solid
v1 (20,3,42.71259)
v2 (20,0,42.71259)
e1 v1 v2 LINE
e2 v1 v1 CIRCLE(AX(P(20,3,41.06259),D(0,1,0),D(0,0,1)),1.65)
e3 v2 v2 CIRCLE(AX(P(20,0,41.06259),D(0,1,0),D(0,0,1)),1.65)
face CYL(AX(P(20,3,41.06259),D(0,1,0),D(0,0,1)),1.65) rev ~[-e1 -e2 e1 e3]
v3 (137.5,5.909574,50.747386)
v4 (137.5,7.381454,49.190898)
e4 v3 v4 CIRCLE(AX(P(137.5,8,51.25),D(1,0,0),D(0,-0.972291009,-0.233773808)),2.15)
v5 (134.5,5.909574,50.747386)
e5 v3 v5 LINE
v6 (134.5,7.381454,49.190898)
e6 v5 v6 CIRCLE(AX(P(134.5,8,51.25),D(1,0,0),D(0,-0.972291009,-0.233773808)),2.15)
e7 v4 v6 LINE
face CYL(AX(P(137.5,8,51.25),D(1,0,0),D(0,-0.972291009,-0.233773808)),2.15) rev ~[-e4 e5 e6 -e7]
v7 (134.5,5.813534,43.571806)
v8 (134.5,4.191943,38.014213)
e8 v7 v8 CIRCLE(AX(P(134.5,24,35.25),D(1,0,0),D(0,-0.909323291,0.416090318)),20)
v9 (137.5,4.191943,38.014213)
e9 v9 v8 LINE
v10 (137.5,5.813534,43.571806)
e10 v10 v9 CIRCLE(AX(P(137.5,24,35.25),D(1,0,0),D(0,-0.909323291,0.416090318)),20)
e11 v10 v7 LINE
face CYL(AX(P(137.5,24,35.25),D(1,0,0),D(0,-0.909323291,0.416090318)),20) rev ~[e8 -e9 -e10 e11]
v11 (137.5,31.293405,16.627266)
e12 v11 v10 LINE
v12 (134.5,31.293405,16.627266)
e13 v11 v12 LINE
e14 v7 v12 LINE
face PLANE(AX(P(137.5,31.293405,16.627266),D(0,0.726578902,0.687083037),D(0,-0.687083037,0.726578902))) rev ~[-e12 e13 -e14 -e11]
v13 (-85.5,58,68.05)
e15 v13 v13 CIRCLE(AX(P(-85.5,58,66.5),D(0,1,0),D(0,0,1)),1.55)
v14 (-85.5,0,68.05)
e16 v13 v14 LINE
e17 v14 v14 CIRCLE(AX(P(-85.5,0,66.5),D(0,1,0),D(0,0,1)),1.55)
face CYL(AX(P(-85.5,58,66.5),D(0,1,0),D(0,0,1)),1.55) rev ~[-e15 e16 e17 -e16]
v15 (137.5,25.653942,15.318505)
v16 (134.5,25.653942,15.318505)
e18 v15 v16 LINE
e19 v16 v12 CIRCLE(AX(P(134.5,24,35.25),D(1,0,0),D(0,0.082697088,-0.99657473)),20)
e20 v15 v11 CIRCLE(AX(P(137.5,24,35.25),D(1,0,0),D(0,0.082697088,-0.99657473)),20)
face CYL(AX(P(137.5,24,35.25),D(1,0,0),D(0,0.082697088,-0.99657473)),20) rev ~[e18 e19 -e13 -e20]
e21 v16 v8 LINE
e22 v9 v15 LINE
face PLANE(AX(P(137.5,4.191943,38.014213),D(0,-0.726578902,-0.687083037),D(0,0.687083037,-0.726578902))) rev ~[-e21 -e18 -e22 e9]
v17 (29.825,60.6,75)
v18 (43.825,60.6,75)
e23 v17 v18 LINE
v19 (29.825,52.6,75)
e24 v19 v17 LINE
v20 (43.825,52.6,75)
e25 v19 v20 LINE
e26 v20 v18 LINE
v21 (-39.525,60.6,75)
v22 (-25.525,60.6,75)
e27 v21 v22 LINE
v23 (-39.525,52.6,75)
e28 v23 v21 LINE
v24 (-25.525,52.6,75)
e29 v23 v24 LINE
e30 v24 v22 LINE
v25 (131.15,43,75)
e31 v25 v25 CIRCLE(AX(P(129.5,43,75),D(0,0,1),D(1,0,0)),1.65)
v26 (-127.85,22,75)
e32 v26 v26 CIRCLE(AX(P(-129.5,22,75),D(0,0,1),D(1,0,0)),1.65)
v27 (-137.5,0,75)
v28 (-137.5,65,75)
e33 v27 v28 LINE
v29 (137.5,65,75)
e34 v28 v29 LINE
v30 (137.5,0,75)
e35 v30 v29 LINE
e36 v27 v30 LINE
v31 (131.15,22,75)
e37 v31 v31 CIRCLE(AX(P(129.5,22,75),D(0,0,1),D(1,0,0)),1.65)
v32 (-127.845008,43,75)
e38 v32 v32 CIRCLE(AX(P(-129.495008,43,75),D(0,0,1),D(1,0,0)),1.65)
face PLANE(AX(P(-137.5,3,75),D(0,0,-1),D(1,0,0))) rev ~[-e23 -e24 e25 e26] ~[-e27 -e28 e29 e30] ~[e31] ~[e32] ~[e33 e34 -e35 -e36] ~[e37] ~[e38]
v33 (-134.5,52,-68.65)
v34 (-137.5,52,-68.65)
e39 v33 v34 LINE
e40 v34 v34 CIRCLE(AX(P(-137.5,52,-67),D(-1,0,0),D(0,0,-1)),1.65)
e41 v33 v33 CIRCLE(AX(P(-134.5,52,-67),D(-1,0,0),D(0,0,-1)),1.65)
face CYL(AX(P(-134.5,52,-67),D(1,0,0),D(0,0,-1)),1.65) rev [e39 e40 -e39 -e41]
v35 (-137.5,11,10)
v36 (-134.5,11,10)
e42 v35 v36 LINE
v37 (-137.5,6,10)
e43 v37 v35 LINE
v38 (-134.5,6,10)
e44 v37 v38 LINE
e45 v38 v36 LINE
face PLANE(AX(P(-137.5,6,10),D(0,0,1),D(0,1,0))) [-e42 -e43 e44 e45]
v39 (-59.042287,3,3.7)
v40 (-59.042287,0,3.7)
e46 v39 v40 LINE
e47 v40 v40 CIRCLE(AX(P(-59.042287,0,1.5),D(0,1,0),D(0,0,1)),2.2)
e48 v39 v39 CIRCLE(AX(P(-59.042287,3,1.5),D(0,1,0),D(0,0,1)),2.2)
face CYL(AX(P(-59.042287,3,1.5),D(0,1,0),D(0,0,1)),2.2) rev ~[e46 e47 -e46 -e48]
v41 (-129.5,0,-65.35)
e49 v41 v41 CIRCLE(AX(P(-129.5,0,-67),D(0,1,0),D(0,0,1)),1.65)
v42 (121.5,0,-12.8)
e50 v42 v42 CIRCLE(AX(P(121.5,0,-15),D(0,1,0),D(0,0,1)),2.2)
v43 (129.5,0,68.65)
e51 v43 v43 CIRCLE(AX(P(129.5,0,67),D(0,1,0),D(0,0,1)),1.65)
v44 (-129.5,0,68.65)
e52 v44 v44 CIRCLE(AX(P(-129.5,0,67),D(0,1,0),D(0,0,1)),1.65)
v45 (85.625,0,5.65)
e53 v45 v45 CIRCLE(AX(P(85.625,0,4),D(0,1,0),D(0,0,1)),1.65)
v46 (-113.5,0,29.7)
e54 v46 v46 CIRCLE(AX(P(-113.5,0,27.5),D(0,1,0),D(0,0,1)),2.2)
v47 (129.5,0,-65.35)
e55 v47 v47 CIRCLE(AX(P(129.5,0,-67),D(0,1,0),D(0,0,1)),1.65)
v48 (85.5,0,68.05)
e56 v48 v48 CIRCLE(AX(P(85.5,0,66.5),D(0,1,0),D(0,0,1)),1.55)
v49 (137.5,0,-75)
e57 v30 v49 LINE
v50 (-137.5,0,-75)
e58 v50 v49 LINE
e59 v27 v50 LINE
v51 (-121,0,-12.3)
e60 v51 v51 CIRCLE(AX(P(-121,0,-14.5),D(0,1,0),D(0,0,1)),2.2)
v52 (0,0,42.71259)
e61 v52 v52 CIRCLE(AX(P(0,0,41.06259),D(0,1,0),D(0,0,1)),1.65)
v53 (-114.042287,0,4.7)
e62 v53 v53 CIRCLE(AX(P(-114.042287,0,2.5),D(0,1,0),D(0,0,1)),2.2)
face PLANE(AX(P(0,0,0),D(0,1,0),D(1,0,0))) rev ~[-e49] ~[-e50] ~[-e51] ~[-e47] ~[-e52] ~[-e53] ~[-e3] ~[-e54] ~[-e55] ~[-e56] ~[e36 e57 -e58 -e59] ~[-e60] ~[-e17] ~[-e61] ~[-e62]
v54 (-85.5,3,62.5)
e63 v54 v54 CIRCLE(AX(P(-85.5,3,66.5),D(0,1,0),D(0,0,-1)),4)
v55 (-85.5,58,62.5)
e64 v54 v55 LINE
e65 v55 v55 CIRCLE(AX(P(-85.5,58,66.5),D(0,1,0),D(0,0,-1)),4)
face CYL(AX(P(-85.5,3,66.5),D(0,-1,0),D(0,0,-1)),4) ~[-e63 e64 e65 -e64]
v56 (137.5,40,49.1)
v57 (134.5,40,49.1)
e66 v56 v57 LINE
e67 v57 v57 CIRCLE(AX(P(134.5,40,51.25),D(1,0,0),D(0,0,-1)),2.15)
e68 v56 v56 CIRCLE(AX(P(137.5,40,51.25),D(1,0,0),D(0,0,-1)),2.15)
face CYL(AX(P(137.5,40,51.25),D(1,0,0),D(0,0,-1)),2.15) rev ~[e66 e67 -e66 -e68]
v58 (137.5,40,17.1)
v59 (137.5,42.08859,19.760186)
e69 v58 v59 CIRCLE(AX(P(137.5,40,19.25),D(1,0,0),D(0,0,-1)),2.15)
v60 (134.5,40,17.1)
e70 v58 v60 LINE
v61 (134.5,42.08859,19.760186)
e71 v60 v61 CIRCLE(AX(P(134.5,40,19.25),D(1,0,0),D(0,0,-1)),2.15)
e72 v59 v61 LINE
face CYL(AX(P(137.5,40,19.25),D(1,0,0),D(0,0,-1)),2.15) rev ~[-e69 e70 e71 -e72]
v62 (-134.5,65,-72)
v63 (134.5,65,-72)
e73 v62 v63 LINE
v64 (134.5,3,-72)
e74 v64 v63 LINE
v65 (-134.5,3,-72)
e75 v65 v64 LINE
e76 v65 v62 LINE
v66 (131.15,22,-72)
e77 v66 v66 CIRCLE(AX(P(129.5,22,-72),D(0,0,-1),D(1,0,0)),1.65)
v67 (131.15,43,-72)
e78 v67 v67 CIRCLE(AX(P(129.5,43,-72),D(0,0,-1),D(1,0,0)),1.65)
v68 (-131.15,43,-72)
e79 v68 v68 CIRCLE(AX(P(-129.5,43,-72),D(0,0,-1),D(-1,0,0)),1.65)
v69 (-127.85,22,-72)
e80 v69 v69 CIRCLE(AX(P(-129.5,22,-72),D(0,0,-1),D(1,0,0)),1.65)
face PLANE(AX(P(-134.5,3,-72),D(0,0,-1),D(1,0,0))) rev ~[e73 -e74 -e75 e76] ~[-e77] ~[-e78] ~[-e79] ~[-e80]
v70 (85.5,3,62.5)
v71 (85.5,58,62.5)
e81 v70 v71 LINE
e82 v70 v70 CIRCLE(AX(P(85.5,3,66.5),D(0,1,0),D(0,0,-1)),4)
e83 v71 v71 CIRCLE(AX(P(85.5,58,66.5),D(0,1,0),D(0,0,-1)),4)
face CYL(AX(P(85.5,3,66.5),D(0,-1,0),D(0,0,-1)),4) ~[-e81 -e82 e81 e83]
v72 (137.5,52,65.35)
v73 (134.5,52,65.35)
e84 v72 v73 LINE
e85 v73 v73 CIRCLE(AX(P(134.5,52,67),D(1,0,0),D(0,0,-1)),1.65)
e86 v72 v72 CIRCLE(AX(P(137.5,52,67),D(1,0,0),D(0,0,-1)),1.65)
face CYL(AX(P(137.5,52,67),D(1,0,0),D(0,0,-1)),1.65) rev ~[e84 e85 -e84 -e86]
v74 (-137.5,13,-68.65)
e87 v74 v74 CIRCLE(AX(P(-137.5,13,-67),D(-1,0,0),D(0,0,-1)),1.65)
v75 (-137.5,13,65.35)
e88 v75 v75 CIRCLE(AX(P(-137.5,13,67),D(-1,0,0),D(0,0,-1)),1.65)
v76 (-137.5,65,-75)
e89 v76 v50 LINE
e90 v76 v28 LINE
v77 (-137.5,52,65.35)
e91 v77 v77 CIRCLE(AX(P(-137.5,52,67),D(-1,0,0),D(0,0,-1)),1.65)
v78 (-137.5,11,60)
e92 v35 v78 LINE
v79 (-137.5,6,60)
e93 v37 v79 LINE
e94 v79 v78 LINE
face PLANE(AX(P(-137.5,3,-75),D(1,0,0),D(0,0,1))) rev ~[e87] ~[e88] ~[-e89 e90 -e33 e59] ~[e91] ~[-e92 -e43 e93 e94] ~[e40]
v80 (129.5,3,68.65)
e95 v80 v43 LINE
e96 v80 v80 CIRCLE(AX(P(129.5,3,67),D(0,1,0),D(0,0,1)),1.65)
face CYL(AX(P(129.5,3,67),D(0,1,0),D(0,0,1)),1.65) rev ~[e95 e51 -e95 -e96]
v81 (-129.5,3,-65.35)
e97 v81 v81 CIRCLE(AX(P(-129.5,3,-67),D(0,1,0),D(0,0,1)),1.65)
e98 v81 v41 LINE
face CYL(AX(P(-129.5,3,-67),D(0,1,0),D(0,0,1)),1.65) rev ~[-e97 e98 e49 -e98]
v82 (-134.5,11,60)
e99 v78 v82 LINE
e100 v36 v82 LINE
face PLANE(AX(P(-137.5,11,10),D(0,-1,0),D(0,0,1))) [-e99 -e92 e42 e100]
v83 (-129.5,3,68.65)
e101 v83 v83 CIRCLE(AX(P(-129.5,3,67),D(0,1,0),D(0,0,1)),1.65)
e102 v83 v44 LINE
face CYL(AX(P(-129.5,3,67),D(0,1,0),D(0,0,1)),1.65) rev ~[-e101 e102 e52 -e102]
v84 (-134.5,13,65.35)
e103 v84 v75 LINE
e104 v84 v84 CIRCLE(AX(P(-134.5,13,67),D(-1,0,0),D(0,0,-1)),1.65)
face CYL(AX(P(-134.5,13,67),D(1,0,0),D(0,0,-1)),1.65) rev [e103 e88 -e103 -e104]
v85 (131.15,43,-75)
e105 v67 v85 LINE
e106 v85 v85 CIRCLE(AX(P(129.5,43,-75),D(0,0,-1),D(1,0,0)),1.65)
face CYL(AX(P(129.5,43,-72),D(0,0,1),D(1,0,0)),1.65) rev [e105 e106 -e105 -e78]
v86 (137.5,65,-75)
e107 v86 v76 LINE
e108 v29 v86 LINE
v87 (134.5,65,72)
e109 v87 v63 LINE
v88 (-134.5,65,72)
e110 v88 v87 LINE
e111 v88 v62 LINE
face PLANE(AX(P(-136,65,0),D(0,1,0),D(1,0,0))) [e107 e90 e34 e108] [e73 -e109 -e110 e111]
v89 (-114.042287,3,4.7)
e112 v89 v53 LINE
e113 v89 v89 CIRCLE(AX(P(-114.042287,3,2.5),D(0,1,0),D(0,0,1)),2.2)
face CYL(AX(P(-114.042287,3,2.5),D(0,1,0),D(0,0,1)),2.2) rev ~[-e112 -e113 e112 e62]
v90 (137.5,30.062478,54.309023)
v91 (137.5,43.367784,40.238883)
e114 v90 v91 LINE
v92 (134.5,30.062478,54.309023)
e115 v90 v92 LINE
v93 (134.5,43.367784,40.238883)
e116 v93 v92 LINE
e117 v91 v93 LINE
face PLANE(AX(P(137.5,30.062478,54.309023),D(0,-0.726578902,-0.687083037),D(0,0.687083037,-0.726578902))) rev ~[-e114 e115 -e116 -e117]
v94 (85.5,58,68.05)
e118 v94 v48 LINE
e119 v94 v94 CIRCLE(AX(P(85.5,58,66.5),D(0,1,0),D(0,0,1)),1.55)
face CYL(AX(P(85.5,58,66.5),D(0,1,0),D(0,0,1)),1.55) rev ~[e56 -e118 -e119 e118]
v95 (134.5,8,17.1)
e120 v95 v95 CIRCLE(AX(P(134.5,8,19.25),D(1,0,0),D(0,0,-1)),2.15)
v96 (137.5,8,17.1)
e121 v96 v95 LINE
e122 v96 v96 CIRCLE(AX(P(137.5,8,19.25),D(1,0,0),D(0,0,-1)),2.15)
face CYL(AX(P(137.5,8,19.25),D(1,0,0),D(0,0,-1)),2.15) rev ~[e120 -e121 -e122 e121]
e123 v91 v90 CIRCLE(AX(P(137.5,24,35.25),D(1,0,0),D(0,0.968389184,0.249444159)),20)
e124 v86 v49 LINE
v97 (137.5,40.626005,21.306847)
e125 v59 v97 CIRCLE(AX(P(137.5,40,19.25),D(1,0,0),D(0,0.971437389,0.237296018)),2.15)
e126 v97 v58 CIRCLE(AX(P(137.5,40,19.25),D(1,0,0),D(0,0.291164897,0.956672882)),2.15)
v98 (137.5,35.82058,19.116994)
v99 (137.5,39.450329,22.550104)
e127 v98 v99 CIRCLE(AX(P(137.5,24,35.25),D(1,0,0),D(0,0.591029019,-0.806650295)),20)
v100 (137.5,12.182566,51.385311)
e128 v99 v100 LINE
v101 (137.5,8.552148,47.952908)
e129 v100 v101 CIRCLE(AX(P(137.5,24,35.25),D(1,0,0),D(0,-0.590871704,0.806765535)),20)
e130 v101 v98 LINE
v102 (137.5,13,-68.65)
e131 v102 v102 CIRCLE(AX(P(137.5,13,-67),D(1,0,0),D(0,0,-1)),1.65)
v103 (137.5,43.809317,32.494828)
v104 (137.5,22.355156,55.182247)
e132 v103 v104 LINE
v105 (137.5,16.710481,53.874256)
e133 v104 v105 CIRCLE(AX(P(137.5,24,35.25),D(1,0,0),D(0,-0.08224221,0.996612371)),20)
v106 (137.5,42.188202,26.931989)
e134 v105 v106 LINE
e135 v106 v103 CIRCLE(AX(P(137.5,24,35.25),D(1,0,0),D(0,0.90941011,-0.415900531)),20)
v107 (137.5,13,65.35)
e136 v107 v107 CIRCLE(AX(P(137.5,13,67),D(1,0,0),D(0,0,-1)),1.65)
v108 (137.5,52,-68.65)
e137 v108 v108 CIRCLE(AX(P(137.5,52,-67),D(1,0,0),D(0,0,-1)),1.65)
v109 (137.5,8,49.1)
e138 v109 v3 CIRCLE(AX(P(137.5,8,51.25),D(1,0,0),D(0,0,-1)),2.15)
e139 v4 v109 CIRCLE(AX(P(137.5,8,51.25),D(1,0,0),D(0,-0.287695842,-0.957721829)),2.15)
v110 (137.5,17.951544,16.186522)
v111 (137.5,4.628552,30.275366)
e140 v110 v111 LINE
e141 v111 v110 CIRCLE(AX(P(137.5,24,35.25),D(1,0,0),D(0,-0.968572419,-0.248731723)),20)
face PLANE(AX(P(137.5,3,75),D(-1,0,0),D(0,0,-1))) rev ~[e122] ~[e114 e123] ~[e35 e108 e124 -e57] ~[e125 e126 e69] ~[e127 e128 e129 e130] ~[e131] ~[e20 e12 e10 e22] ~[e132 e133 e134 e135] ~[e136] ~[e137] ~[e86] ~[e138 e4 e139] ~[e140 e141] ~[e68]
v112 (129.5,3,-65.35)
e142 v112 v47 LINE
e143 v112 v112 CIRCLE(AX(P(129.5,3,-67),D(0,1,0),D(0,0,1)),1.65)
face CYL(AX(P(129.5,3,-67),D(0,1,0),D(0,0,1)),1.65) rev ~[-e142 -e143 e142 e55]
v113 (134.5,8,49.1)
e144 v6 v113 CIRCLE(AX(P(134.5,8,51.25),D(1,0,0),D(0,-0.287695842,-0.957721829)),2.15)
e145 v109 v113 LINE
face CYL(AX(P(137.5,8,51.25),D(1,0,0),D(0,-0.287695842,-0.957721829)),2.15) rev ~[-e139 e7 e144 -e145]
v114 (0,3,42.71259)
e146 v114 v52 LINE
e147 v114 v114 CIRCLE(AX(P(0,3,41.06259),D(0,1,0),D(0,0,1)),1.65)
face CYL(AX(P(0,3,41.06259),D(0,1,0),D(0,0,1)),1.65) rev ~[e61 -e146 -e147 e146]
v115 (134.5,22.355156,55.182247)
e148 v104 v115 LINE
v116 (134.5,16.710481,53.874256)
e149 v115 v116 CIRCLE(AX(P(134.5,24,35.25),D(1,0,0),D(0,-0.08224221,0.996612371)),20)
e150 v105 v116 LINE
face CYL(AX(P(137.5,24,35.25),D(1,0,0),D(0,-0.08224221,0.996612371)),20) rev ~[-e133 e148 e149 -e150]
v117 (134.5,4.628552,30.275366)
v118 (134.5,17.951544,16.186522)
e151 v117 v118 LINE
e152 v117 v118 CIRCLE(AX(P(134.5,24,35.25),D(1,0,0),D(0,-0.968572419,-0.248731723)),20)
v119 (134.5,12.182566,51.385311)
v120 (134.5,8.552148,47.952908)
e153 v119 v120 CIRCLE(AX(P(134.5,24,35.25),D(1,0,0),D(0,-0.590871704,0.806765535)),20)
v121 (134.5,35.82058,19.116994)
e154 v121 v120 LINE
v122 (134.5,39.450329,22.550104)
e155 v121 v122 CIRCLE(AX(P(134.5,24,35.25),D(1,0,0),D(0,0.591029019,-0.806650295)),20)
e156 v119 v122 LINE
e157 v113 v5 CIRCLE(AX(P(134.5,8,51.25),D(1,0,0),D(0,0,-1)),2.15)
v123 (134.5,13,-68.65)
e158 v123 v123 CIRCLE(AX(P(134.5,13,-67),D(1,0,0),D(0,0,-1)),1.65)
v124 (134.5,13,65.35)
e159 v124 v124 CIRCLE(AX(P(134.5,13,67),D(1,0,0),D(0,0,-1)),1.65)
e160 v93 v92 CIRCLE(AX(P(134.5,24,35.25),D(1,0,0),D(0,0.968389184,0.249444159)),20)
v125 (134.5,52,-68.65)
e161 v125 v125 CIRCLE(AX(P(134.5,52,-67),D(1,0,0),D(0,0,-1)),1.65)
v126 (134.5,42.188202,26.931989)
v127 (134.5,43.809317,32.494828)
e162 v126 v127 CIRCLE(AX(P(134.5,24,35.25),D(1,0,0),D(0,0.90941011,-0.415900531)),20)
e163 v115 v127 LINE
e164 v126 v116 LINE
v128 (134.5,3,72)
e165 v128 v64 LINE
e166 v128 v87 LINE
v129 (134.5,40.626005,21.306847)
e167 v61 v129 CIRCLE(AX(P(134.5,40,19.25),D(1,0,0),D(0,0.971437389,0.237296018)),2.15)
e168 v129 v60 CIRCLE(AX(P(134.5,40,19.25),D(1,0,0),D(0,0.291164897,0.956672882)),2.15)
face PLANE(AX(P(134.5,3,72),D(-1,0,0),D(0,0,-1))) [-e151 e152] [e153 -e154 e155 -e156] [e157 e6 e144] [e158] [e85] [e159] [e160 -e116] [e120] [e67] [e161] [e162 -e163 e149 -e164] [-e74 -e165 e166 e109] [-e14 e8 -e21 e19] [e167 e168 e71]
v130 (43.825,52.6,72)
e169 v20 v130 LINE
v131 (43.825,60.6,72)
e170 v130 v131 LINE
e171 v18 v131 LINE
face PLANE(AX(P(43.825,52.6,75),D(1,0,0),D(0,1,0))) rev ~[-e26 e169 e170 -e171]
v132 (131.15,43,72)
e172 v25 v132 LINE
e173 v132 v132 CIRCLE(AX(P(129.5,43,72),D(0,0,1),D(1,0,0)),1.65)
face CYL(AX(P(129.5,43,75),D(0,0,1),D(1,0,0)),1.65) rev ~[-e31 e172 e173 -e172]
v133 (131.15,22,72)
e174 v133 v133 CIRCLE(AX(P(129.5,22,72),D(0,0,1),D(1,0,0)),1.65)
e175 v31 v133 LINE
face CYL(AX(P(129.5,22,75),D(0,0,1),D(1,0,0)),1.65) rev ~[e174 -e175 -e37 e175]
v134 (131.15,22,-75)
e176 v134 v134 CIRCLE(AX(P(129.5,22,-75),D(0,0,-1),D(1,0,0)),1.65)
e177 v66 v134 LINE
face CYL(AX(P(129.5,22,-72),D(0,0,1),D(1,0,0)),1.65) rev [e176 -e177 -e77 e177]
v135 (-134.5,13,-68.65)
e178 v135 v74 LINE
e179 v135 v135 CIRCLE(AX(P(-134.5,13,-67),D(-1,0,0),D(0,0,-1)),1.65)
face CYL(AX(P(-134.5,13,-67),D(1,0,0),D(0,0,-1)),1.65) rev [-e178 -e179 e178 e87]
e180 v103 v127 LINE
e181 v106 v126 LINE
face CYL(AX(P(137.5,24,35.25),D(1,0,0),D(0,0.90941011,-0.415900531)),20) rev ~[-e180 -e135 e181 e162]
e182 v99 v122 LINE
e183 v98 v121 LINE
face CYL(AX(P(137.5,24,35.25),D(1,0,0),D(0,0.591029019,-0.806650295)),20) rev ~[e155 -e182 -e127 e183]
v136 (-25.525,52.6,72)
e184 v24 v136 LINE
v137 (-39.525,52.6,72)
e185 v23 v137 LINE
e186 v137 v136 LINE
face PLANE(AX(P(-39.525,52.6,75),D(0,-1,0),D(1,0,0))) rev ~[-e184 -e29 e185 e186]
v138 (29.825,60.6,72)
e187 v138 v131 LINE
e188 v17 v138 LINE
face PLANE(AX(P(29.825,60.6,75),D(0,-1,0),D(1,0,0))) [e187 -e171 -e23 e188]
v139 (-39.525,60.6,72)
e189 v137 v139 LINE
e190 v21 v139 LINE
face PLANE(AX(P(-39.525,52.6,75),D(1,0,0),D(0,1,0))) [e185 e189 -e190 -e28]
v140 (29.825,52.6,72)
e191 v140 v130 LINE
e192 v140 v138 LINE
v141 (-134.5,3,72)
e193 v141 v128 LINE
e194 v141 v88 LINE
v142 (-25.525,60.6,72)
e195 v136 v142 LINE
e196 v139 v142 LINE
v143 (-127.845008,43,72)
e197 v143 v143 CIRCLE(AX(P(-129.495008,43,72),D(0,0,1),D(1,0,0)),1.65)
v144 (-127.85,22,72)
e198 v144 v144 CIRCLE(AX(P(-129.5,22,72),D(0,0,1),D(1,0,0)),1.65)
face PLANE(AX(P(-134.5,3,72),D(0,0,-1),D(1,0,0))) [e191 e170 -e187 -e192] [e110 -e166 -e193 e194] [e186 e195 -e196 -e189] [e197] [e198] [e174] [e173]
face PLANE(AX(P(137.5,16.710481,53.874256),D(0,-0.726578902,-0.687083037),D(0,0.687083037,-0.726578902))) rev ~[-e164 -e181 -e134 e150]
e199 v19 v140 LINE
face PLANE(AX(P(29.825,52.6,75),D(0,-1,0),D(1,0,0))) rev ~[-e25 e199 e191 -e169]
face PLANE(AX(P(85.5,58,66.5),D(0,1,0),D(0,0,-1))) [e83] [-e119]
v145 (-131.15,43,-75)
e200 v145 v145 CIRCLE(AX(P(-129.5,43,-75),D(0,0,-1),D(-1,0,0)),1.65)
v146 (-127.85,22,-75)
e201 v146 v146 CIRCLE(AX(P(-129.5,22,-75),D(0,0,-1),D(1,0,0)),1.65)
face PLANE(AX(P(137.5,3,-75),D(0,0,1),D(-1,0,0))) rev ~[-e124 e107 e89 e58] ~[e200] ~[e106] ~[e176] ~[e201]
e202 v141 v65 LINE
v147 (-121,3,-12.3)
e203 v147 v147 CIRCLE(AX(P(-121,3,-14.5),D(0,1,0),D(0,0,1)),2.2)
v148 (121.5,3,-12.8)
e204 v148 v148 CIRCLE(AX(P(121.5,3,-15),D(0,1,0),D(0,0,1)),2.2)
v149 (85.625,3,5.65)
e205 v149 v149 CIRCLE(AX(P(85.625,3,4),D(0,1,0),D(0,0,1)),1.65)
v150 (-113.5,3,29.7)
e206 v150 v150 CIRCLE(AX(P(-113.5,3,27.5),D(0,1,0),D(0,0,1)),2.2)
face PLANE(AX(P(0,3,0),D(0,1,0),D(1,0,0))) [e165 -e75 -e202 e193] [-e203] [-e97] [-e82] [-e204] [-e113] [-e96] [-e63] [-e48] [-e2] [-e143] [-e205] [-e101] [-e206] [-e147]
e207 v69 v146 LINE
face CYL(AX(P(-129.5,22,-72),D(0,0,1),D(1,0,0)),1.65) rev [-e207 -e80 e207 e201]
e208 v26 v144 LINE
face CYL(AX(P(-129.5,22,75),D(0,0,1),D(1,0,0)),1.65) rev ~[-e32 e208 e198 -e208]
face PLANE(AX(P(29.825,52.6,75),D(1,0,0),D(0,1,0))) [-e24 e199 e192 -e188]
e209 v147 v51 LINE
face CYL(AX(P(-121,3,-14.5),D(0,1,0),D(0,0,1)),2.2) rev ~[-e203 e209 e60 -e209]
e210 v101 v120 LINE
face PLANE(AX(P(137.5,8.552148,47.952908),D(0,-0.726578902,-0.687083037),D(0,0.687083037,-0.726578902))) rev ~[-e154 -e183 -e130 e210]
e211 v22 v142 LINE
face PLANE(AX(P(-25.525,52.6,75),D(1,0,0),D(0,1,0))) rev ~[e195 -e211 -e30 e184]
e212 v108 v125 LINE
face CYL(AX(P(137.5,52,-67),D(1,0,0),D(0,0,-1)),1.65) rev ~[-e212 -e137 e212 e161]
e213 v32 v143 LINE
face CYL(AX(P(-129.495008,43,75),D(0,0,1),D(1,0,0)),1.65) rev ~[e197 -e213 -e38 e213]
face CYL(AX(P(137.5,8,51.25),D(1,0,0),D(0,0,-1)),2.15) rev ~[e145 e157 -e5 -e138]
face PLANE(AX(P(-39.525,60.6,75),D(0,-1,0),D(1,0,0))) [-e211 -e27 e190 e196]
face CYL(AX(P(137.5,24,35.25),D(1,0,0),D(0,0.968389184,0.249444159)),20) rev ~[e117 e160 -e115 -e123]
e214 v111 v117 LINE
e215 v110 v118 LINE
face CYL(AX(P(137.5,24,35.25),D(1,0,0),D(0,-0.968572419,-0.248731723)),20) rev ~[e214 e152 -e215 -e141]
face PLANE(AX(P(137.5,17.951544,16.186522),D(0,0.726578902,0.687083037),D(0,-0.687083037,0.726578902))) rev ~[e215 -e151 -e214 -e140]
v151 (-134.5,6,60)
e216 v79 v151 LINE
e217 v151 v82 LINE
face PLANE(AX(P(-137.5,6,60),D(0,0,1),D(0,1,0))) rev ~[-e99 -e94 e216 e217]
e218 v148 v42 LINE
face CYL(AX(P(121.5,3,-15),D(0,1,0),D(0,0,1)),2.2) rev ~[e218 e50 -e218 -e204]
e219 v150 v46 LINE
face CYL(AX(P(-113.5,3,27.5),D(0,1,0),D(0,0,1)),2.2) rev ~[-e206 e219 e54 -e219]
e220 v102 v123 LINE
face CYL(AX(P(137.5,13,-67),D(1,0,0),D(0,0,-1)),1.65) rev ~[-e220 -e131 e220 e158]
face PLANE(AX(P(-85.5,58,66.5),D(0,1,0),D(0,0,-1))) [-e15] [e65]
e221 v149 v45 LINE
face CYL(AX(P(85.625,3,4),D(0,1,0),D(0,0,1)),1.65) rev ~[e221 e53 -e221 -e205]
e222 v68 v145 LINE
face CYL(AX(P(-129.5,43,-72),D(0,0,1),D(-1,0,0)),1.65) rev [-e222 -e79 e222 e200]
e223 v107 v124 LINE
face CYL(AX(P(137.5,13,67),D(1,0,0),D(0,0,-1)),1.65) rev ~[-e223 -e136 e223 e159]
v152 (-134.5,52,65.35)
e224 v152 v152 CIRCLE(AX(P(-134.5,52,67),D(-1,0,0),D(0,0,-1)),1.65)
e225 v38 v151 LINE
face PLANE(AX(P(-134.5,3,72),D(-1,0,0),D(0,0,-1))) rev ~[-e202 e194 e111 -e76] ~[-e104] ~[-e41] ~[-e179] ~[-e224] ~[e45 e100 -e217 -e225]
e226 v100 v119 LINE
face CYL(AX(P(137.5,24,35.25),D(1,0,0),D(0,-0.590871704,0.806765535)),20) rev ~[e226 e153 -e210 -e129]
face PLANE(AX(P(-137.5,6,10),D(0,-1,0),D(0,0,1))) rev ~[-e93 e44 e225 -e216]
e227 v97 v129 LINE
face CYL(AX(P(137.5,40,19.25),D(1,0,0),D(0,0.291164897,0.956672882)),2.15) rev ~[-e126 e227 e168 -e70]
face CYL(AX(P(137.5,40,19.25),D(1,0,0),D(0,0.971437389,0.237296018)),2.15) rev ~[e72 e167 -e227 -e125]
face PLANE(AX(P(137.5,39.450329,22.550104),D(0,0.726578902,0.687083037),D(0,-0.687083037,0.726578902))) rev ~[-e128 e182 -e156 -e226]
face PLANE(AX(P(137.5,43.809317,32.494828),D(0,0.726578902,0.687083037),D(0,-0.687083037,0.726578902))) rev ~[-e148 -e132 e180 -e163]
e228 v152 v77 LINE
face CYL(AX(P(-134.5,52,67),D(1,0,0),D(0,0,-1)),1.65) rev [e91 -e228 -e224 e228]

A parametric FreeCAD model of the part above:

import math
import FreeCAD as App
import Part
import Sketcher
from FreeCAD import Vector
Q = App.Units.Quantity


def add_polygon(sketch, points):
    """Adds a closed chain of lines whose ends are joined by coincident constraints."""
    first, n = sketch.GeometryCount, len(points)
    for a, b in zip(points, points[1:] + points[:1]):
        sketch.addGeometry(Part.LineSegment(App.Vector(*a, 0), App.Vector(*b, 0)), False)
    for i in range(n):
        sketch.addConstraint(Sketcher.Constraint("Coincident", first + i, 2, first + (i + 1) % n, 1))

doc = App.newDocument("Part")
body = doc.addObject("PartDesign::Body", "Body")

sketch1 = doc.addObject("Sketcher::SketchObject", "Sketch")
body.addObject(sketch1)
sketch1.AttachmentSupport = (doc.XZ_Plane, [""])
sketch1.MapMode = "FlatFace"
add_polygon(sketch1, [(-138, -75), (-138, 75), (138, 75), (138, -75)])
sketch1.addConstraint([
    Sketcher.Constraint("Vertical", 0),
    Sketcher.Constraint("Horizontal", 1),
    Sketcher.Constraint("Vertical", 2),
    Sketcher.Constraint("Horizontal", 3),
    Sketcher.Constraint("Symmetric", 0, 2, 2, 2, -1, 1),
    Sketcher.Constraint("DistanceX", 1, 1, 1, 2, Q("275 mm")),
    Sketcher.Constraint("DistanceY", 0, 1, 0, 2, Q("150 mm")),
])
pad1 = doc.addObject("PartDesign::Pad", "Pad")
body.addObject(pad1)
pad1.Profile = sketch1
pad1.Length = 3
pad1.Reversed = True

sketch2 = doc.addObject("Sketcher::SketchObject", "Sketch001")
body.addObject(sketch2)
sketch2.AttachmentSupport = (doc.XZ_Plane, [""])
sketch2.MapMode = "FlatFace"
sketch2.AttachmentOffset = App.Placement(Vector(0, 0, -3), App.Rotation())
add_polygon(sketch2, [(-138, -75), (-138, 75), (138, 75), (138, -75)])
add_polygon(sketch2, [(134, 72), (-134, 72), (-134, -72), (134, -72)])
sketch2.addConstraint([
    Sketcher.Constraint("Vertical", 0),
    Sketcher.Constraint("Horizontal", 1),
    Sketcher.Constraint("Vertical", 2),
    Sketcher.Constraint("Horizontal", 3),
    Sketcher.Constraint("Horizontal", 4),
    Sketcher.Constraint("Vertical", 5),
    Sketcher.Constraint("Horizontal", 6),
    Sketcher.Constraint("Vertical", 7),
    Sketcher.Constraint("Symmetric", 0, 2, 2, 2, -1, 1),
    Sketcher.Constraint("Symmetric", 4, 2, 6, 2, -1, 1),
    Sketcher.Constraint("DistanceX", 1, 1, 1, 2, Q("275 mm")),
    Sketcher.Constraint("DistanceX", 4, 2, 4, 1, Q("269 mm")),
    Sketcher.Constraint("DistanceY", 0, 1, 0, 2, Q("150 mm")),
    Sketcher.Constraint("DistanceY", 5, 2, 5, 1, Q("144 mm")),
])
pad2 = doc.addObject("PartDesign::Pad", "Pad001")
body.addObject(pad2)
pad2.Profile = sketch2
pad2.Length = 62
pad2.Reversed = True

sketch3 = doc.addObject("Sketcher::SketchObject", "Sketch002")
body.addObject(sketch3)
sketch3.AttachmentSupport = (doc.XZ_Plane, [""])
sketch3.MapMode = "FlatFace"
sketch3.AttachmentOffset = App.Placement(Vector(0, 0, -3), App.Rotation())
sketch3.addGeometry([
    Part.Circle(Vector(-85.5, 66.5, 0), Vector(0, 0, 1), 4),
    Part.Circle(Vector(85.5, 66.5, 0), Vector(0, 0, 1), 4),
], False)
sketch3.addConstraint([
    Sketcher.Constraint("Equal", 0, 1),
    Sketcher.Constraint("Symmetric", 0, 3, 1, 3, -2),
    Sketcher.Constraint("Diameter", 0, Q("8 mm")),
    Sketcher.Constraint("DistanceX", 0, 3, 1, 3, Q("171 mm")),
    Sketcher.Constraint("DistanceY", -1, 1, 0, 3, Q("66.5 mm")),
])
pad3 = doc.addObject("PartDesign::Pad", "Pad002")
body.addObject(pad3)
pad3.Profile = sketch3
pad3.Length = 55
pad3.Reversed = True

sketch4 = doc.addObject("Sketcher::SketchObject", "Sketch003")
body.addObject(sketch4)
sketch4.AttachmentSupport = (doc.XZ_Plane, [""])
sketch4.MapMode = "FlatFace"
sketch4.AttachmentOffset = App.Placement(Vector(0, 0, -58), App.Rotation())
sketch4.addGeometry([
    Part.Circle(Vector(-85.5, 66.5, 0), Vector(0, 0, 1), 1.6),
    Part.Circle(Vector(85.5, 66.5, 0), Vector(0, 0, 1), 1.6),
], False)
sketch4.addConstraint([
    Sketcher.Constraint("Equal", 0, 1),
    Sketcher.Constraint("Symmetric", 0, 3, 1, 3, -2),
    Sketcher.Constraint("Diameter", 0, Q("3.1 mm")),
    Sketcher.Constraint("DistanceX", 0, 3, 1, 3, Q("171 mm")),
    Sketcher.Constraint("DistanceY", -1, 1, 0, 3, Q("66.5 mm")),
])
pocket1 = doc.addObject("PartDesign::Pocket", "Pocket")
body.addObject(pocket1)
pocket1.Profile = sketch4
pocket1.Type = "ThroughAll"
pocket1.Reversed = True

sketch5 = doc.addObject("Sketcher::SketchObject", "Sketch004")
body.addObject(sketch5)
sketch5.AttachmentSupport = (doc.XZ_Plane, [""])
sketch5.MapMode = "FlatFace"
sketch5.AttachmentOffset = App.Placement(Vector(0, 0, -3), App.Rotation())
sketch5.addGeometry(Part.Circle(Vector(85.6, 4, 0), Vector(0, 0, 1), 1.6), False)
sketch5.addConstraint([
    Sketcher.Constraint("Diameter", 0, Q("3.3 mm")),
    Sketcher.Constraint("DistanceY", -1, 1, 0, 3, Q("4 mm")),
    Sketcher.Constraint("DistanceX", -1, 1, 0, 3, Q("85.625 mm")),
])
pocket2 = doc.addObject("PartDesign::Pocket", "Pocket001")
body.addObject(pocket2)
pocket2.Profile = sketch5
pocket2.Type = "ThroughAll"
pocket2.Reversed = True

sketch6 = doc.addObject("Sketcher::SketchObject", "Sketch005")
body.addObject(sketch6)
sketch6.AttachmentSupport = (doc.XZ_Plane, [""])
sketch6.MapMode = "FlatFace"
sketch6.AttachmentOffset = App.Placement(Vector(0, 0, -3), App.Rotation())
sketch6.addGeometry([
    Part.Circle(Vector(121.5, -15, 0), Vector(0, 0, 1), 2.2),
    Part.Circle(Vector(-121, -14.5, 0), Vector(0, 0, 1), 2.2),
    Part.Circle(Vector(-59, 1.5, 0), Vector(0, 0, 1), 2.2),
    Part.Circle(Vector(-114, 2.5, 0), Vector(0, 0, 1), 2.2),
    Part.Circle(Vector(-113.5, 27.5, 0), Vector(0, 0, 1), 2.2),
], False)
sketch6.addConstraint([
    Sketcher.Constraint("Equal", 0, 1),
    Sketcher.Constraint("Equal", 1, 2),
    Sketcher.Constraint("Equal", 2, 3),
    Sketcher.Constraint("Equal", 3, 4),
    Sketcher.Constraint("Diameter", 0, Q("4.4 mm")),
    Sketcher.Constraint("DistanceY", 0, 3, -1, 1, Q("15 mm")),
    Sketcher.Constraint("DistanceX", 1, 3, -1, 1, Q("121 mm")),
    Sketcher.Constraint("DistanceY", 1, 3, 2, 3, Q("16 mm")),
    Sketcher.Constraint("DistanceY", 1, 3, 3, 3, Q("17 mm")),
    Sketcher.Constraint("DistanceX", 3, 3, 2, 3, Q("55 mm")),
    Sketcher.Constraint("DistanceY", 3, 3, 4, 3, Q("25 mm")),
    Sketcher.Constraint("DistanceX", 4, 3, 0, 3, Q("235 mm")),
    Sketcher.Constraint("DistanceX", -1, 1, 0, 3, Q("121.5 mm")),
    Sketcher.Constraint("DistanceY", 1, 3, -1, 1, Q("14.5 mm")),
    Sketcher.Constraint("DistanceX", 2, 3, -1, 1, Q("59.042287 mm")),
])
pocket3 = doc.addObject("PartDesign::Pocket", "Pocket002")
body.addObject(pocket3)
pocket3.Profile = sketch6
pocket3.Length = 10
pocket3.Reversed = True

sketch7 = doc.addObject("Sketcher::SketchObject", "Sketch006")
body.addObject(sketch7)
sketch7.AttachmentSupport = (doc.XZ_Plane, [""])
sketch7.MapMode = "FlatFace"
sketch7.AttachmentOffset = App.Placement(Vector(0, 0, -3), App.Rotation())
sketch7.addGeometry([
    Part.Circle(Vector(-129.5, -67, 0), Vector(0, 0, 1), 1.6),
    Part.Circle(Vector(129.5, -67, 0), Vector(0, 0, 1), 1.6),
    Part.Circle(Vector(129.5, 67, 0), Vector(0, 0, 1), 1.6),
    Part.Circle(Vector(-129.5, 67, 0), Vector(0, 0, 1), 1.6),
], False)
sketch7.addConstraint([
    Sketcher.Constraint("Equal", 0, 1),
    Sketcher.Constraint("Equal", 1, 2),
    Sketcher.Constraint("Equal", 2, 3),
    Sketcher.Constraint("Symmetric", 0, 3, 2, 3, -1, 1),
    Sketcher.Constraint("Symmetric", 1, 3, 3, 3, -1, 1),
    Sketcher.Constraint("Symmetric", 0, 3, 1, 3, -2),
    Sketcher.Constraint("Diameter", 0, Q("3.3 mm")),
    Sketcher.Constraint("DistanceY", 0, 3, -1, 1, Q("67 mm")),
    Sketcher.Constraint("DistanceX", 0, 3, 1, 3, Q("259 mm")),
])
pocket4 = doc.addObject("PartDesign::Pocket", "Pocket003")
body.addObject(pocket4)
pocket4.Profile = sketch7
pocket4.Length = 10
pocket4.Reversed = True

sketch8 = doc.addObject("Sketcher::SketchObject", "Sketch007")
body.addObject(sketch8)
sketch8.AttachmentSupport = (doc.YZ_Plane, [""])
sketch8.MapMode = "FlatFace"
sketch8.AttachmentOffset = App.Placement(Vector(0, 0, 137.5), App.Rotation())
sketch8.addGeometry([
    Part.ArcOfCircle(Part.Circle(Vector(24, 35.2, 0), Vector(0, 0, 1), 20), math.radians(14), math.radians(72)),
    Part.LineSegment(Vector(30.1, 54.3, 0), Vector(43.4, 40.2, 0)),
    Part.ArcOfCircle(Part.Circle(Vector(24, 35.3, 0), Vector(0, 0, 1), 20), math.radians(94.72), math.radians(111.38)),
    Part.LineSegment(Vector(16.7, 53.9, 0), Vector(42.2, 26.9, 0)),
    Part.ArcOfCircle(Part.Circle(Vector(24, 35.2, 0), Vector(0, 0, 1), 20), math.radians(-24.58), math.radians(-7.92)),
    Part.LineSegment(Vector(43.8, 32.5, 0), Vector(22.4, 55.2, 0)),
    Part.LineSegment(Vector(39.5, 22.6, 0), Vector(12.2, 51.4, 0)),
    Part.ArcOfCircle(Part.Circle(Vector(24, 35.2, 0), Vector(0, 0, 1), 20), math.radians(126.22), math.radians(140.57)),
    Part.LineSegment(Vector(8.6, 48, 0), Vector(35.8, 19.1, 0)),
    Part.ArcOfCircle(Part.Circle(Vector(24, 35.3, 0), Vector(0, 0, 1), 20), math.radians(-53.77), math.radians(-39.42)),
    Part.LineSegment(Vector(31.3, 16.6, 0), Vector(5.8, 43.6, 0)),
    Part.ArcOfCircle(Part.Circle(Vector(24, 35.2, 0), Vector(0, 0, 1), 20), math.radians(155.41), math.radians(172.06)),
    Part.LineSegment(Vector(4.2, 38, 0), Vector(25.7, 15.3, 0)),
    Part.ArcOfCircle(Part.Circle(Vector(24, 35.2, 0), Vector(0, 0, 1), 20), math.radians(-85.26), math.radians(-68.61)),
    Part.LineSegment(Vector(18, 16.2, 0), Vector(4.6, 30.3, 0)),
    Part.ArcOfCircle(Part.Circle(Vector(24, 35.3, 0), Vector(0, 0, 1), 20), math.radians(-166), math.radians(-108)),
    Part.Circle(Vector(40, 51.2, 0), Vector(0, 0, 1), 2.1),
    Part.ArcOfCircle(Part.Circle(Vector(40, 19.3, 0), Vector(0, 0, 1), 2.1), math.radians(14), math.radians(73)),
    Part.ArcOfCircle(Part.Circle(Vector(40, 19.2, 0), Vector(0, 0, 1), 2.1), math.radians(73), math.radians(270)),
    Part.ArcOfCircle(Part.Circle(Vector(40, 19.2, 0), Vector(0, 0, 1), 2.1), math.radians(-90), math.radians(14)),
    Part.Circle(Vector(8, 19.2, 0), Vector(0, 0, 1), 2.1),
    Part.ArcOfCircle(Part.Circle(Vector(8, 51.2, 0), Vector(0, 0, 1), 2.1), math.radians(-166), math.radians(-107)),
    Part.ArcOfCircle(Part.Circle(Vector(8, 51.3, 0), Vector(0, 0, 1), 2.2), math.radians(-106.72), math.radians(-90)),
    Part.ArcOfCircle(Part.Circle(Vector(8, 51.2, 0), Vector(0, 0, 1), 2.1), math.radians(-90), math.radians(194)),
], False)
sketch8.addConstraint([
    Sketcher.Constraint("Coincident", 0, 1, 1, 2),
    Sketcher.Constraint("Coincident", 1, 1, 0, 2),
    Sketcher.Constraint("Coincident", 2, 2, 3, 1),
    Sketcher.Constraint("Coincident", 3, 2, 4, 1),
    Sketcher.Constraint("Coincident", 4, 2, 5, 1),
    Sketcher.Constraint("Coincident", 5, 2, 2, 1),
    Sketcher.Constraint("Coincident", 6, 2, 7, 1),
    Sketcher.Constraint("Coincident", 7, 2, 8, 1),
    Sketcher.Constraint("Coincident", 8, 2, 9, 1),
    Sketcher.Constraint("Coincident", 9, 2, 6, 1),
    Sketcher.Constraint("Coincident", 10, 2, 11, 1),
    Sketcher.Constraint("Coincident", 11, 2, 12, 1),
    Sketcher.Constraint("Coincident", 12, 2, 13, 1),
    Sketcher.Constraint("Coincident", 13, 2, 10, 1),
    Sketcher.Constraint("Coincident", 14, 1, 15, 2),
    Sketcher.Constraint("Coincident", 15, 1, 14, 2),
    Sketcher.Constraint("Tangent", 17, 2, 18, 1),
    Sketcher.Constraint("Tangent", 18, 2, 19, 1),
    Sketcher.Constraint("Tangent", 19, 2, 17, 1),
    Sketcher.Constraint("Tangent", 21, 2, 22, 1),
    Sketcher.Constraint("Tangent", 22, 2, 23, 1),
    Sketcher.Constraint("Tangent", 23, 2, 21, 1),
    Sketcher.Constraint("Coincident", 2, 3, 0, 3),
    Sketcher.Constraint("Coincident", 4, 3, 0, 3),
    Sketcher.Constraint("Coincident", 7, 3, 0, 3),
    Sketcher.Constraint("Coincident", 9, 3, 0, 3),
    Sketcher.Constraint("Coincident", 11, 3, 0, 3),
    Sketcher.Constraint("Coincident", 13, 3, 0, 3),
    Sketcher.Constraint("Coincident", 15, 3, 0, 3),
    Sketcher.Constraint("Equal", 0, 2),
    Sketcher.Constraint("Equal", 2, 4),
    Sketcher.Constraint("Equal", 4, 7),
    Sketcher.Constraint("Equal", 7, 9),
    Sketcher.Constraint("Equal", 9, 11),
    Sketcher.Constraint("Equal", 11, 13),
    Sketcher.Constraint("Equal", 13, 15),
    Sketcher.Constraint("Equal", 16, 17),
    Sketcher.Constraint("Equal", 19, 20),
    Sketcher.Constraint("Equal", 20, 21),
    Sketcher.Constraint("Parallel", 1, 3),
    Sketcher.Constraint("Parallel", 3, 5),
    Sketcher.Constraint("Parallel", 5, 6),
    Sketcher.Constraint("Parallel", 6, 8),
    Sketcher.Constraint("Parallel", 8, 10),
    Sketcher.Constraint("Parallel", 10, 12),
    Sketcher.Constraint("Parallel", 12, 14),
    Sketcher.Constraint("Horizontal", 19, 3, 20, 3),
    Sketcher.Constraint("Horizontal", 16, 3, 21, 3),
    Sketcher.Constraint("Vertical", 16, 3, 17, 3),
    Sketcher.Constraint("Vertical", 20, 3, 21, 3),
    Sketcher.Constraint("Vertical", 19, 3, 18, 2),
    Sketcher.Constraint("Vertical", 23, 3, 22, 2),
    Sketcher.Constraint("Radius", 0, Q("20 mm")),
    Sketcher.Constraint("Diameter", 16, Q("4.3 mm")),
    Sketcher.Constraint("DistanceX", -1, 1, 0, 3, Q("24 mm")),
    Sketcher.Constraint("DistanceX", -1, 1, 16, 3, Q("40 mm")),
    Sketcher.Constraint("DistanceX", -1, 1, 20, 3, Q("8 mm")),
    Sketcher.Constraint("DistanceY", 11, 3, 16, 3, Q("16 mm")),
    Sketcher.Constraint("DistanceY", 17, 3, 11, 3, Q("16 mm")),
    Sketcher.Constraint("DistanceY", -1, 1, 18, 2, Q("17.1 mm")),
    Sketcher.Constraint("DistanceY", -1, 1, 21, 2, Q("49.190898 mm")),
    Sketcher.Constraint("DistanceY", 10, 2, 7, 2, Q("4.381102 mm")),
    Sketcher.Constraint("DistanceY", 12, 2, 9, 2, Q("7.231599 mm")),
    Sketcher.Constraint("Distance", 5, Q("31.22499 mm")),
    Sketcher.Constraint("Distance", 6, Q("39.68627 mm")),
    Sketcher.Constraint("Distance", 14, Q("19.390658 mm")),
    Sketcher.Constraint("DistanceX", -1, 1, 2, 2, Q("16.710481 mm")),
    Sketcher.Constraint("DistanceY", -1, 1, 3, 2, Q("26.931989 mm")),
    Sketcher.Constraint("DistanceX", -1, 1, 7, 2, Q("8.552148 mm")),
    Sketcher.Constraint("DistanceX", -1, 1, 19, 2, Q("42.08859 mm")),
    Sketcher.Constraint("DistanceY", 0, 1, 1, 1, Q("14.07014 mm")),
    Sketcher.Constraint("DistanceY", 19, 2, 17, 2, Q("1.54666 mm")),
    Sketcher.Constraint("DistanceX", 23, 2, 21, 2, Q("1.47188 mm")),
])
pocket5 = doc.addObject("PartDesign::Pocket", "Pocket004")
body.addObject(pocket5)
pocket5.Profile = sketch8
pocket5.Length = 10

sketch9 = doc.addObject("Sketcher::SketchObject", "Sketch008")
body.addObject(sketch9)
sketch9.AttachmentSupport = (doc.YZ_Plane, [""])
sketch9.MapMode = "FlatFace"
sketch9.AttachmentOffset = App.Placement(Vector(0, 0, -137.5), App.Rotation())
add_polygon(sketch9, [(11, 10), (6, 10), (6, 60), (11, 60)])
sketch9.addConstraint([
    Sketcher.Constraint("Horizontal", 0),
    Sketcher.Constraint("Vertical", 1),
    Sketcher.Constraint("Horizontal", 2),
    Sketcher.Constraint("Vertical", 3),
    Sketcher.Constraint("DistanceX", 0, 2, 0, 1, Q("5 mm")),
    Sketcher.Constraint("DistanceY", 1, 1, 1, 2, Q("50 mm")),
    Sketcher.Constraint("DistanceX", -1, 1, 0, 2, Q("6 mm")),
    Sketcher.Constraint("DistanceY", -1, 1, 0, 2, Q("10 mm")),
])
pocket6 = doc.addObject("PartDesign::Pocket", "Pocket005")
body.addObject(pocket6)
pocket6.Profile = sketch9
pocket6.Length = 3
pocket6.Reversed = True

sketch10 = doc.addObject("Sketcher::SketchObject", "Sketch009")
body.addObject(sketch10)
sketch10.AttachmentSupport = (doc.XY_Plane, [""])
sketch10.MapMode = "FlatFace"
sketch10.AttachmentOffset = App.Placement(Vector(0, 0, 75), App.Rotation())
add_polygon(sketch10, [(-40, 61), (-40, 53), (-26, 53), (-26, 61)])
add_polygon(sketch10, [(30, 61), (30, 53), (44, 53), (44, 61)])
sketch10.addConstraint([
    Sketcher.Constraint("Vertical", 0),
    Sketcher.Constraint("Horizontal", 1),
    Sketcher.Constraint("Vertical", 2),
    Sketcher.Constraint("Horizontal", 3),
    Sketcher.Constraint("Vertical", 4),
    Sketcher.Constraint("Horizontal", 5),
    Sketcher.Constraint("Vertical", 6),
    Sketcher.Constraint("Horizontal", 7),
    Sketcher.Constraint("Horizontal", 1, 2, 4, 2),
    Sketcher.Constraint("Horizontal", 3, 2, 6, 2),
    Sketcher.Constraint("Equal", 3, 5),
    Sketcher.Constraint("DistanceX", 1, 1, 1, 2, Q("14 mm")),
    Sketcher.Constraint("DistanceY", 0, 2, 0, 1, Q("8 mm")),
    Sketcher.Constraint("DistanceY", -1, 1, 0, 2, Q("52.6 mm")),
    Sketcher.Constraint("DistanceX", 1, 2, 4, 2, Q("55.35 mm")),
    Sketcher.Constraint("DistanceX", 0, 2, -1, 1, Q("39.525 mm")),
])
pocket7 = doc.addObject("PartDesign::Pocket", "Pocket006")
body.addObject(pocket7)
pocket7.Profile = sketch10
pocket7.Length = 3

sketch11 = doc.addObject("Sketcher::SketchObject", "Sketch010")
body.addObject(sketch11)
sketch11.AttachmentSupport = (doc.XZ_Plane, [""])
sketch11.MapMode = "FlatFace"
sketch11.AttachmentOffset = App.Placement(Vector(0, 0, -3), App.Rotation())
sketch11.addGeometry([
    Part.Circle(Vector(0, 41.1, 0), Vector(0, 0, 1), 1.6),
    Part.Circle(Vector(20, 41.1, 0), Vector(0, 0, 1), 1.6),
], False)
sketch11.addConstraint([
    Sketcher.Constraint("Equal", 0, 1),
    Sketcher.Constraint("PointOnObject", 0, 3, -2),
    Sketcher.Constraint("Horizontal", 0, 3, 1, 3),
    Sketcher.Constraint("Diameter", 0, Q("3.3 mm")),
    Sketcher.Constraint("DistanceX", -1, 1, 1, 3, Q("20 mm")),
    Sketcher.Constraint("DistanceY", -1, 1, 0, 3, Q("41.06259 mm")),
])
pocket8 = doc.addObject("PartDesign::Pocket", "Pocket007")
body.addObject(pocket8)
pocket8.Profile = sketch11
pocket8.Length = 3
pocket8.Reversed = True

sketch12 = doc.addObject("Sketcher::SketchObject", "Sketch011")
body.addObject(sketch12)
sketch12.AttachmentSupport = (doc.YZ_Plane, [""])
sketch12.MapMode = "FlatFace"
sketch12.AttachmentOffset = App.Placement(Vector(0, 0, 137.5), App.Rotation())
sketch12.addGeometry([
    Part.Circle(Vector(52, 67, 0), Vector(0, 0, 1), 1.6),
    Part.Circle(Vector(13, 67, 0), Vector(0, 0, 1), 1.6),
    Part.Circle(Vector(13, -67, 0), Vector(0, 0, 1), 1.6),
    Part.Circle(Vector(52, -67, 0), Vector(0, 0, 1), 1.6),
], False)
sketch12.addConstraint([
    Sketcher.Constraint("Equal", 0, 1),
    Sketcher.Constraint("Equal", 1, 2),
    Sketcher.Constraint("Equal", 2, 3),
    Sketcher.Constraint("Symmetric", 1, 3, 2, 3, -1),
    Sketcher.Constraint("Symmetric", 0, 3, 3, 3, -1),
    Sketcher.Constraint("Horizontal", 0, 3, 1, 3),
    Sketcher.Constraint("Diameter", 0, Q("3.3 mm")),
    Sketcher.Constraint("DistanceX", -1, 1, 0, 3, Q("52 mm")),
    Sketcher.Constraint("DistanceY", -1, 1, 0, 3, Q("67 mm")),
    Sketcher.Constraint("DistanceX", -1, 1, 1, 3, Q("13 mm")),
])
pocket9 = doc.addObject("PartDesign::Pocket", "Pocket008")
body.addObject(pocket9)
pocket9.Profile = sketch12
pocket9.Length = 3

sketch13 = doc.addObject("Sketcher::SketchObject", "Sketch012")
body.addObject(sketch13)
sketch13.AttachmentSupport = (doc.YZ_Plane, [""])
sketch13.MapMode = "FlatFace"
sketch13.AttachmentOffset = App.Placement(Vector(0, 0, -134.5), App.Rotation())
sketch13.addGeometry([
    Part.Circle(Vector(52, -67, 0), Vector(0, 0, 1), 1.6),
    Part.Circle(Vector(13, -67, 0), Vector(0, 0, 1), 1.6),
    Part.Circle(Vector(13, 67, 0), Vector(0, 0, 1), 1.6),
    Part.Circle(Vector(52, 67, 0), Vector(0, 0, 1), 1.6),
], False)
sketch13.addConstraint([
    Sketcher.Constraint("Equal", 0, 1),
    Sketcher.Constraint("Equal", 1, 2),
    Sketcher.Constraint("Equal", 2, 3),
    Sketcher.Constraint("Symmetric", 1, 3, 2, 3, -1),
    Sketcher.Constraint("Symmetric", 0, 3, 3, 3, -1),
    Sketcher.Constraint("Horizontal", 0, 3, 1, 3),
    Sketcher.Constraint("Diameter", 0, Q("3.3 mm")),
    Sketcher.Constraint("DistanceX", -1, 1, 0, 3, Q("52 mm")),
    Sketcher.Constraint("DistanceY", 0, 3, -1, 1, Q("67 mm")),
    Sketcher.Constraint("DistanceX", -1, 1, 1, 3, Q("13 mm")),
])
pocket10 = doc.addObject("PartDesign::Pocket", "Pocket009")
body.addObject(pocket10)
pocket10.Profile = sketch13
pocket10.Length = 3

sketch14 = doc.addObject("Sketcher::SketchObject", "Sketch013")
body.addObject(sketch14)
sketch14.AttachmentSupport = (doc.XY_Plane, [""])
sketch14.MapMode = "FlatFace"
sketch14.AttachmentOffset = App.Placement(Vector(0, 0, 75), App.Rotation())
sketch14.addGeometry([
    Part.Circle(Vector(-129.5, 43, 0), Vector(0, 0, 1), 1.6),
    Part.Circle(Vector(-129.5, 22, 0), Vector(0, 0, 1), 1.6),
    Part.Circle(Vector(129.5, 43, 0), Vector(0, 0, 1), 1.6),
    Part.Circle(Vector(129.5, 22, 0), Vector(0, 0, 1), 1.6),
], False)
sketch14.addConstraint([
    Sketcher.Constraint("Equal", 0, 1),
    Sketcher.Constraint("Equal", 1, 2),
    Sketcher.Constraint("Equal", 2, 3),
    Sketcher.Constraint("Symmetric", 1, 3, 3, 3, -2),
    Sketcher.Constraint("Horizontal", 0, 3, 2, 3),
    Sketcher.Constraint("Vertical", 2, 3, 3, 3),
    Sketcher.Constraint("Diameter", 0, Q("3.3 mm")),
    Sketcher.Constraint("DistanceY", -1, 1, 0, 3, Q("43 mm")),
    Sketcher.Constraint("DistanceY", -1, 1, 1, 3, Q("22 mm")),
    Sketcher.Constraint("DistanceX", 1, 3, 2, 3, Q("259 mm")),
    Sketcher.Constraint("DistanceX", 0, 3, -1, 1, Q("129.495008 mm")),
])
pocket11 = doc.addObject("PartDesign::Pocket", "Pocket010")
body.addObject(pocket11)
pocket11.Profile = sketch14
pocket11.Length = 3

sketch15 = doc.addObject("Sketcher::SketchObject", "Sketch014")
body.addObject(sketch15)
sketch15.AttachmentSupport = (doc.XY_Plane, [""])
sketch15.MapMode = "FlatFace"
sketch15.AttachmentOffset = App.Placement(Vector(0, 0, -72), App.Rotation())
sketch15.addGeometry([
    Part.Circle(Vector(129.5, 43, 0), Vector(0, 0, 1), 1.6),
    Part.Circle(Vector(129.5, 22, 0), Vector(0, 0, 1), 1.6),
    Part.Circle(Vector(-129.5, 43, 0), Vector(0, 0, 1), 1.6),
    Part.Circle(Vector(-129.5, 22, 0), Vector(0, 0, 1), 1.6),
], False)
sketch15.addConstraint([
    Sketcher.Constraint("Equal", 0, 1),
    Sketcher.Constraint("Equal", 1, 2),
    Sketcher.Constraint("Equal", 2, 3),
    Sketcher.Constraint("Symmetric", 0, 3, 2, 3, -2),
    Sketcher.Constraint("Symmetric", 1, 3, 3, 3, -2),
    Sketcher.Constraint("Vertical", 0, 3, 1, 3),
    Sketcher.Constraint("Diameter", 0, Q("3.3 mm")),
    Sketcher.Constraint("DistanceY", -1, 1, 0, 3, Q("43 mm")),
    Sketcher.Constraint("DistanceY", -1, 1, 1, 3, Q("22 mm")),
    Sketcher.Constraint("DistanceX", 2, 3, 0, 3, Q("259 mm")),
])
pocket12 = doc.addObject("PartDesign::Pocket", "Pocket011")
body.addObject(pocket12)
pocket12.Profile = sketch15
pocket12.Length = 3

doc.recompute()
